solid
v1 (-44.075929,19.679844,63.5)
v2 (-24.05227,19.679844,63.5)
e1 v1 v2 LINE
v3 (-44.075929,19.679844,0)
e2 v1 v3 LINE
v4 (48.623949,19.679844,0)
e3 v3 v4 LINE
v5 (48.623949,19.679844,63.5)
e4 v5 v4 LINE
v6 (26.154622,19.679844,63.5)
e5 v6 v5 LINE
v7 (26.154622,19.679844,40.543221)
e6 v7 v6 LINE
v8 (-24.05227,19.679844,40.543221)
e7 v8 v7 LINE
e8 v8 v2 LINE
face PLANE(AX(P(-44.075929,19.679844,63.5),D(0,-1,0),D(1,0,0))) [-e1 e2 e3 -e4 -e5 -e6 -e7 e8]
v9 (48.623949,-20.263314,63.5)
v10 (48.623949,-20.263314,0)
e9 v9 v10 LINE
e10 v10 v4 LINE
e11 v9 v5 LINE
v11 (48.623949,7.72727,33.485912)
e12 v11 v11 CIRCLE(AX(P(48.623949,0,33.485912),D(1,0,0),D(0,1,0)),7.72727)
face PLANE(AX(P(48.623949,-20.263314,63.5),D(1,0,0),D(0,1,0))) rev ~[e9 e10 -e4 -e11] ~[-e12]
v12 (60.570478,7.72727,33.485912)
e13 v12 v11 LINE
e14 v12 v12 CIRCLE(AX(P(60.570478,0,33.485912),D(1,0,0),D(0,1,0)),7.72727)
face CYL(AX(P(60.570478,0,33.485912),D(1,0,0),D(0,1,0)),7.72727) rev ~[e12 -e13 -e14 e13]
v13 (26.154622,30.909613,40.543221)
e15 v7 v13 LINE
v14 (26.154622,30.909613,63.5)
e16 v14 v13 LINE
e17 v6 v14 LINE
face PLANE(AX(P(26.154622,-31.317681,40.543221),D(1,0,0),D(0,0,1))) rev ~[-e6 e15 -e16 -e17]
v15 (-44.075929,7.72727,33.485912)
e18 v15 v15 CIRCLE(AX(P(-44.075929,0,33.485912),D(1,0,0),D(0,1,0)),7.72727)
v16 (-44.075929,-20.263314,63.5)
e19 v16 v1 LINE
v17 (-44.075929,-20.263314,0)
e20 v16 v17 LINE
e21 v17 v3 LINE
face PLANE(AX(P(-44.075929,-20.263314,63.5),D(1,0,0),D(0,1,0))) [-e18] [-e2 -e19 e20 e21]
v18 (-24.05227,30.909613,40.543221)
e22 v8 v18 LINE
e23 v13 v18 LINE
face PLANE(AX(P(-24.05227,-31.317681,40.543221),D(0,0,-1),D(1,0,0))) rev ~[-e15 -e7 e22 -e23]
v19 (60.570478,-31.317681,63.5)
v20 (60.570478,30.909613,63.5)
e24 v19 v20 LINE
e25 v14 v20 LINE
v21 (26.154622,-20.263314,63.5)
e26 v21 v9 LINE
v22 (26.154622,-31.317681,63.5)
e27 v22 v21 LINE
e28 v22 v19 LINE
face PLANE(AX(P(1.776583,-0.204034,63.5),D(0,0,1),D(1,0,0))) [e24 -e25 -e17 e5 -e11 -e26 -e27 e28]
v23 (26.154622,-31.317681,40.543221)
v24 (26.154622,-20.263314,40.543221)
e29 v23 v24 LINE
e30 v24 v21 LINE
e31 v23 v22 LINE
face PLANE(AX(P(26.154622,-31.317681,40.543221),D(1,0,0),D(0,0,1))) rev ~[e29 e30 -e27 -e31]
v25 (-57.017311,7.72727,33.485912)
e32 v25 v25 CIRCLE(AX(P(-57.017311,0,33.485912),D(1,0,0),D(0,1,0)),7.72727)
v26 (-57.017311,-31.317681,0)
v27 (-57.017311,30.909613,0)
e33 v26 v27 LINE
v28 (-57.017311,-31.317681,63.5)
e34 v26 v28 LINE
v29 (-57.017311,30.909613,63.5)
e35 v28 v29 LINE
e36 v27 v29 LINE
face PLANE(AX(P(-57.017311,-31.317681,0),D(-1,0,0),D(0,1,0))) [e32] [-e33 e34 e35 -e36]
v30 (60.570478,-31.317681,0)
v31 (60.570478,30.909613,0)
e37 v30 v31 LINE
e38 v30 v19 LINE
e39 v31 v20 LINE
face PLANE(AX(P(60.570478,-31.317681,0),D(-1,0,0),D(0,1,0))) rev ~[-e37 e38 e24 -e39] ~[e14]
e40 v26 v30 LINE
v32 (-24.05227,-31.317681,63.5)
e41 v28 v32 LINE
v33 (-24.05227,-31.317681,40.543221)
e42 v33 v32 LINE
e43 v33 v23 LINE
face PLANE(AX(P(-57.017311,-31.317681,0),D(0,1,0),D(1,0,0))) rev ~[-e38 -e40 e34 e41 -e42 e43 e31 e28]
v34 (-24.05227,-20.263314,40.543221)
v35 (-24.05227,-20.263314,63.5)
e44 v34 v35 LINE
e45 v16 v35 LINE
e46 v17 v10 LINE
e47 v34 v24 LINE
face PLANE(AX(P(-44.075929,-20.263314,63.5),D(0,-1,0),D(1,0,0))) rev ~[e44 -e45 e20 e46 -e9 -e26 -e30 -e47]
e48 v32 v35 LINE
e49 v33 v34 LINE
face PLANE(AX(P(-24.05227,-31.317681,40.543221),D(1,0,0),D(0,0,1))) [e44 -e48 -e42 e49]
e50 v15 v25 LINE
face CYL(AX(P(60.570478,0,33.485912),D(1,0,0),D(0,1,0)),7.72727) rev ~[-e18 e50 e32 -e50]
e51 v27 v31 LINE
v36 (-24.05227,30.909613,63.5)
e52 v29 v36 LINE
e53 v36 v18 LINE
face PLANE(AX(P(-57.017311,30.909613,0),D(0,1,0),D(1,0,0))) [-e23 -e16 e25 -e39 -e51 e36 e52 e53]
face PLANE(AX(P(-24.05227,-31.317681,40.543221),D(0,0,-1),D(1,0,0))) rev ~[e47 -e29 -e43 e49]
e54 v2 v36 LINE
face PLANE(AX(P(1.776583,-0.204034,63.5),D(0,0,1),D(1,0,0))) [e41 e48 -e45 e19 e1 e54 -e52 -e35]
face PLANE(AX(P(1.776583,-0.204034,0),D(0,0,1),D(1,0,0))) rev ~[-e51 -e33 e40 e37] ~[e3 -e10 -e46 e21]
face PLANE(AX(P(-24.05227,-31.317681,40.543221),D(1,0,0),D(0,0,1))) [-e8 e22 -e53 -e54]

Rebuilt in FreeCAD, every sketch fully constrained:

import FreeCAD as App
import Part
import Sketcher

V = App.Vector
Q = App.Units.Quantity


def add_polygon(sketch, points):
    """Adds a closed chain of lines whose ends are joined by coincident constraints."""
    first, n = sketch.GeometryCount, len(points)
    for a, b in zip(points, points[1:] + points[:1]):
        sketch.addGeometry(Part.LineSegment(App.Vector(*a, 0), App.Vector(*b, 0)), False)
    for i in range(n):
        sketch.addConstraint(Sketcher.Constraint("Coincident", first + i, 2, first + (i + 1) % n, 1))

doc = App.newDocument("Part")
body = doc.addObject("PartDesign::Body", "Body")

# Sketch on XY plane
sketch1 = body.newObject("Sketcher::SketchObject", "Sketch")
sketch1.AttachmentSupport = (doc.getObject("XY_Plane"), [""])
sketch1.MapMode = "FlatFace"
add_polygon(sketch1, [(-57, 31), (-57, -31), (61, -31), (61, 31)])  # lines 0-3
sketch1.addConstraint([
    Sketcher.Constraint("Vertical", 0),
    Sketcher.Constraint("Horizontal", 1),
    Sketcher.Constraint("Vertical", 2),
    Sketcher.Constraint("Horizontal", 3),
    Sketcher.Constraint("DistanceX", 1, 1, 1, 2, Q("117.58779 mm")),
    Sketcher.Constraint("DistanceY", 0, 2, 0, 1, Q("62.227294 mm")),
    Sketcher.Constraint("DistanceX", 0, 2, -1, 1, Q("57.017311 mm")),
    Sketcher.Constraint("DistanceY", 0, 2, -1, 1, Q("31.317681 mm")),
])
pad1 = body.newObject("PartDesign::Pad", "Pad")
pad1.Profile = sketch1
pad1.Length = Q("2.5 in")

# Sketch on XY plane
sketch2 = body.newObject("Sketcher::SketchObject", "Sketch001")
sketch2.AttachmentSupport = (doc.getObject("XY_Plane"), [""])
sketch2.MapMode = "FlatFace"
sketch2.AttachmentOffset = App.Placement(V(0, 0, 2.5 * 25.4), App.Rotation())
add_polygon(sketch2, [(-44, 20), (-44, -20), (49, -20), (49, 20)])  # lines 0-3
sketch2.addConstraint([
    Sketcher.Constraint("Vertical", 0),
    Sketcher.Constraint("Horizontal", 1),
    Sketcher.Constraint("Vertical", 2),
    Sketcher.Constraint("Horizontal", 3),
    Sketcher.Constraint("DistanceY", 0, 2, 0, 1, Q("39.943159 mm")),
    Sketcher.Constraint("DistanceX", 1, 1, 1, 2, Q("92.699878 mm")),
    Sketcher.Constraint("DistanceX", 0, 2, -1, 1, Q("44.075929 mm")),
    Sketcher.Constraint("DistanceY", 0, 2, -1, 1, Q("20.263314 mm")),
])
pocket1 = body.newObject("PartDesign::Pocket", "Pocket")
pocket1.Profile = sketch2
pocket1.Type = "ThroughAll"

# Sketch on YZ plane
sketch3 = body.newObject("Sketcher::SketchObject", "Sketch002")
sketch3.AttachmentSupport = (doc.getObject("YZ_Plane"), [""])
sketch3.MapMode = "FlatFace"
sketch3.AttachmentOffset = App.Placement(V(0, 0, 60.570478), App.Rotation())
sketch3.addGeometry(Part.Circle(V(0, 33, 0), V(0, 0, 1), 8), False)
sketch3.addConstraint([
    Sketcher.Constraint("PointOnObject", 0, 3, -2),
    Sketcher.Constraint("Diameter", 0, Q("15.454539 mm")),
    Sketcher.Constraint("DistanceY", -1, 1, 0, 3, Q("33.485912 mm")),
])
pocket2 = body.newObject("PartDesign::Pocket", "Pocket001")
pocket2.Profile = sketch3
pocket2.Type = "ThroughAll"

# Sketch on XZ plane
sketch4 = body.newObject("Sketcher::SketchObject", "Sketch003")
sketch4.AttachmentSupport = (doc.getObject("XZ_Plane"), [""])
sketch4.MapMode = "FlatFace"
sketch4.AttachmentOffset = App.Placement(V(0, 0, 31.317681), App.Rotation())
add_polygon(sketch4, [(-24, 64), (-24, 41), (26, 41), (26, 64)])  # lines 0-3
sketch4.addConstraint([
    Sketcher.Constraint("Vertical", 0),
    Sketcher.Constraint("Horizontal", 1),
    Sketcher.Constraint("Vertical", 2),
    Sketcher.Constraint("Horizontal", 3),
    Sketcher.Constraint("DistanceY", -1, 1, 2, 2, Q("2.5 in")),
    Sketcher.Constraint("DistanceY", 0, 2, 0, 1, Q("22.956779 mm")),
    Sketcher.Constraint("DistanceX", 1, 1, 1, 2, Q("50.206892 mm")),
    Sketcher.Constraint("DistanceX", 0, 2, -1, 1, Q("24.05227 mm")),
])
pocket3 = body.newObject("PartDesign::Pocket", "Pocket002")
pocket3.Profile = sketch4
pocket3.Type = "ThroughAll"

doc.recompute()
